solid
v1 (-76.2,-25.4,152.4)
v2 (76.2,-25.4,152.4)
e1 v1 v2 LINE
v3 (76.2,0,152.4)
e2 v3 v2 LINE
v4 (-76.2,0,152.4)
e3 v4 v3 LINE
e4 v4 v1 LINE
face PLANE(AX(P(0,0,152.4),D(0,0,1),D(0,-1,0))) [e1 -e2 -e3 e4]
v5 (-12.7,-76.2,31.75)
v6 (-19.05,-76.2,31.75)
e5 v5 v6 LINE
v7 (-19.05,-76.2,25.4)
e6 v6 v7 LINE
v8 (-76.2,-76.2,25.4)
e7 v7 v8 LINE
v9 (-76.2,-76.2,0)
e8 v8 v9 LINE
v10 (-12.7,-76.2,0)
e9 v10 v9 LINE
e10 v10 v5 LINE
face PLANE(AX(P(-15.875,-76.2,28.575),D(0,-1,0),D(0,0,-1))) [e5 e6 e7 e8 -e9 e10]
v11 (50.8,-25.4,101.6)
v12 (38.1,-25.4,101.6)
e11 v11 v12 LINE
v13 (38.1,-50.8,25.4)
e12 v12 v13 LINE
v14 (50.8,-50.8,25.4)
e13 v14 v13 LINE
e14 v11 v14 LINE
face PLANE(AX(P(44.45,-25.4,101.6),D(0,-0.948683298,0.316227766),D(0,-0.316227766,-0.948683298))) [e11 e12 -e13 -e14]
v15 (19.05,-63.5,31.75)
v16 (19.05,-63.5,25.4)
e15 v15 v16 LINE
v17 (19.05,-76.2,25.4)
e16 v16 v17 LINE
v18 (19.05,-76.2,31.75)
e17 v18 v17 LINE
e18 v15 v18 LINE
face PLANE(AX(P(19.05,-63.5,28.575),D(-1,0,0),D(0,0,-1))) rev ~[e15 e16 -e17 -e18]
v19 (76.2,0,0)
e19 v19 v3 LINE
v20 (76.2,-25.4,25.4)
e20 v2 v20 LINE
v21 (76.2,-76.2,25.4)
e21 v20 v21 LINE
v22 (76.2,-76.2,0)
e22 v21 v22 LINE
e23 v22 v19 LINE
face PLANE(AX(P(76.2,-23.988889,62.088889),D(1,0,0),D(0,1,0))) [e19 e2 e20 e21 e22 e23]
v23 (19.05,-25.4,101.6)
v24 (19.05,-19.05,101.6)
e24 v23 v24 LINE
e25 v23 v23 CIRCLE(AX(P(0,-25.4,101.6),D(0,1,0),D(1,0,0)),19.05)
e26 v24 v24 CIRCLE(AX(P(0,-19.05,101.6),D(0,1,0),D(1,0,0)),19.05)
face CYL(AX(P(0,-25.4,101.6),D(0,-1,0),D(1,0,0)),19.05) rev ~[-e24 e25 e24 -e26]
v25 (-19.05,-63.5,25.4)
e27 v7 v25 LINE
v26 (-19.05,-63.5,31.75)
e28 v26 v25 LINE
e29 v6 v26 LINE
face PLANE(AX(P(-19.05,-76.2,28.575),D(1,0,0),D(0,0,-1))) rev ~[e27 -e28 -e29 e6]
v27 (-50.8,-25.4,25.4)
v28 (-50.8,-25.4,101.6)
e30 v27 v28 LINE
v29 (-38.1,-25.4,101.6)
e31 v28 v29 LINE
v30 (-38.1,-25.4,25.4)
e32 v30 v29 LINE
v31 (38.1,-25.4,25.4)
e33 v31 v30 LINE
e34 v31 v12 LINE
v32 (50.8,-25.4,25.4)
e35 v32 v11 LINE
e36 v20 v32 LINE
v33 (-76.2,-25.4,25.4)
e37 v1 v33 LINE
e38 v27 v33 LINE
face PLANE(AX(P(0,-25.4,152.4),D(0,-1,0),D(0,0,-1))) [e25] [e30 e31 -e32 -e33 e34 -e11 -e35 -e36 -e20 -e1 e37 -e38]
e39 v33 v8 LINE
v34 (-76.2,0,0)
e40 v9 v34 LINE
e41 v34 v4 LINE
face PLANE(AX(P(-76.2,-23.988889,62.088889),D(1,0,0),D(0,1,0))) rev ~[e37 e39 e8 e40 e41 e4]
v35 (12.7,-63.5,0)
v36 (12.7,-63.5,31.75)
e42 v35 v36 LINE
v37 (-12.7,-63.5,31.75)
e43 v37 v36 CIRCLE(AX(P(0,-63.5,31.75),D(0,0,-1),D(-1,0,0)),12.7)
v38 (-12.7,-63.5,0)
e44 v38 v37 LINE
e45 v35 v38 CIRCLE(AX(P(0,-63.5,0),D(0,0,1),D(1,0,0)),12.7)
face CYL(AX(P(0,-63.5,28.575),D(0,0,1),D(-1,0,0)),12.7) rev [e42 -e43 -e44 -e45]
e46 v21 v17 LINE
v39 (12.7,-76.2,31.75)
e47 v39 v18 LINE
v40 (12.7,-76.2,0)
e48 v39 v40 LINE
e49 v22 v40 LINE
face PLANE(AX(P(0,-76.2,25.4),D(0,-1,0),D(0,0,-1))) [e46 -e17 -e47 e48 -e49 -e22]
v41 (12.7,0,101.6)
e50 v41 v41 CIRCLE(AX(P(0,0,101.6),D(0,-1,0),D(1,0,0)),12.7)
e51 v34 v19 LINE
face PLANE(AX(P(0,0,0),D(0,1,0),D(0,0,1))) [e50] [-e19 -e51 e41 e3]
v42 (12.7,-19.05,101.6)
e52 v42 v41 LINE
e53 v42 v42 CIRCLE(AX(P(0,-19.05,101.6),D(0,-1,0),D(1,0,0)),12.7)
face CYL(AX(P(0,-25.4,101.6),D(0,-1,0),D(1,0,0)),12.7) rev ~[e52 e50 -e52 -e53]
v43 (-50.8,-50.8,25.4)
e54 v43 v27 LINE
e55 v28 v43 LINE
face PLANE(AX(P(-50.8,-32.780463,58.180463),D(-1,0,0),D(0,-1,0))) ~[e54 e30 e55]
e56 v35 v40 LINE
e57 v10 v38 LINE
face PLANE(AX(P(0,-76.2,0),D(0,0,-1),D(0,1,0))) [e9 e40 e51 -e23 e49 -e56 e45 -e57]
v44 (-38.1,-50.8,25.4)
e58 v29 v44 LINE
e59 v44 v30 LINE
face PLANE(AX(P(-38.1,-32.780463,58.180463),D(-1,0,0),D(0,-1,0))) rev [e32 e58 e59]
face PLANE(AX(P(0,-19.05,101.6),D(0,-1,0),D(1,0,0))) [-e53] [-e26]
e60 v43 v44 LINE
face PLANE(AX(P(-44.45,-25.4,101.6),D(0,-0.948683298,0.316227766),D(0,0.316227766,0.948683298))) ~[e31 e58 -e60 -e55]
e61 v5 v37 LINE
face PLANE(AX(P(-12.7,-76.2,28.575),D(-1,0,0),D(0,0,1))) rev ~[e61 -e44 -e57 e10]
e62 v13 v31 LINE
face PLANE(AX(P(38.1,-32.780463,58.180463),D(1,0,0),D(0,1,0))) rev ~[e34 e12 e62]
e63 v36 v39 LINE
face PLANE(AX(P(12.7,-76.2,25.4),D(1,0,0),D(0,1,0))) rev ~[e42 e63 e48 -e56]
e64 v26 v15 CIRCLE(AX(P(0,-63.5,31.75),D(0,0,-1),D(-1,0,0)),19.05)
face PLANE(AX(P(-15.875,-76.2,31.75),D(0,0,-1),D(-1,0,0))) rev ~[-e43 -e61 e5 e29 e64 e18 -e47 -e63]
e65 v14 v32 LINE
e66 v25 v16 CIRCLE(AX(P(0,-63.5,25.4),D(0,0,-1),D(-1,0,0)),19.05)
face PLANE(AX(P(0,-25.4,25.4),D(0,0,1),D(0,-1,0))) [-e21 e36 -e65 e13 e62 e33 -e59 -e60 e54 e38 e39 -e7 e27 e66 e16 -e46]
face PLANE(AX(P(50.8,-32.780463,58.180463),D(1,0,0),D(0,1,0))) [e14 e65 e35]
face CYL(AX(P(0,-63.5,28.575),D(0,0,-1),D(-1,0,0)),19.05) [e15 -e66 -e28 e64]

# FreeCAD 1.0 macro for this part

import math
import FreeCAD as App
import Part
import Sketcher
from FreeCAD import Vector
Q = App.Units.Quantity


def add_polygon(sketch, points):
    """Adds a closed chain of lines whose ends are joined by coincident constraints."""
    first, n = sketch.GeometryCount, len(points)
    for a, b in zip(points, points[1:] + points[:1]):
        sketch.addGeometry(Part.LineSegment(App.Vector(*a, 0), App.Vector(*b, 0)), False)
    for i in range(n):
        sketch.addConstraint(Sketcher.Constraint("Coincident", first + i, 2, first + (i + 1) % n, 1))

doc = App.newDocument("Part")
params = doc.addObject("Spreadsheet::Sheet", "Params")
for row, (alias, value) in enumerate([
    ("sketch1_width", "3 in"),
    ("sketch1_width2", "1 in"),
    ("sketch1_height", "6 in"),
    ("pad1_length", "6 in"),
    ("sketch2_radius", "0.5 in"),
    ("sketch2_height", "0.5 in"),
    ("sketch3_diameter", "1 in"),
    ("sketch4_diameter", "1 in"),
    ("sketch4_diameter2", "1.5 in"),
    ("pocket3_length", "0.25 in"),
    ("sketch5_width", "1 in"),
    ("sketch5_height", "3 in"),
    ("pad2_length", "0.5 in"),
    ("sketch6_width", "0.25 in"),
    ("sketch7_radius", "0.5 in"),
    ("sketch7_height", "0.5 in"),
], start=1):
    params.set(f"A{row}", alias)
    params.set(f"B{row}", "=" + value)
    params.setAlias(f"B{row}", alias)

body = doc.addObject("PartDesign::Body", "Body")

sketch1 = body.newObject("Sketcher::SketchObject", "Sketch")
sketch1.AttachmentSupport = (doc.getObject("YZ_Plane"), [""])
sketch1.MapMode = "FlatFace"
add_polygon(sketch1, [(-76, 0), (0, 0), (0, 152), (-25, 152), (-25, 25), (-76, 25)])
sketch1.addConstraint(Sketcher.Constraint("Horizontal", 0))
sketch1.addConstraint(Sketcher.Constraint("Vertical", 1))
sketch1.addConstraint(Sketcher.Constraint("Horizontal", 2))
sketch1.addConstraint(Sketcher.Constraint("Vertical", 3))
sketch1.addConstraint(Sketcher.Constraint("Horizontal", 4))
sketch1.addConstraint(Sketcher.Constraint("Vertical", 5))
sketch1.addConstraint(Sketcher.Constraint("Coincident", 0, 2, -1, 1))
sketch1.addConstraint(Sketcher.Constraint("Equal", 2, 5))
sketch1.addConstraint(Sketcher.Constraint("DistanceX", 0, 1, 0, 2, Q("3 in")))
sketch1.addConstraint(Sketcher.Constraint("DistanceX", 2, 2, 2, 1, Q("1 in")))
sketch1.addConstraint(Sketcher.Constraint("DistanceY", 1, 1, 1, 2, Q("6 in")))
sketch1.setExpression("Constraints[14]", "Params.sketch1_width")
sketch1.setExpression("Constraints[15]", "Params.sketch1_width2")
sketch1.setExpression("Constraints[16]", "Params.sketch1_height")
pad1 = body.newObject("PartDesign::Pad", "Pad")
pad1.Profile = sketch1
pad1.setExpression("Length", "Params.pad1_length")
pad1.Midplane = True

sketch2 = body.newObject("Sketcher::SketchObject", "Sketch001")
sketch2.AttachmentSupport = (doc.getObject("XY_Plane"), [""])
sketch2.MapMode = "FlatFace"
sketch2.AttachmentOffset = App.Placement(Vector(0, 0, 1 * 25.4), App.Rotation())
sketch2.addGeometry(Part.LineSegment(Vector(13, -76, 0), Vector(13, -64, 0)), False)
sketch2.addGeometry(Part.ArcOfCircle(Part.Circle(Vector(0, -64, 0), Vector(0, 0, 1), 13), math.radians(0), math.radians(180)), False)
sketch2.addGeometry(Part.LineSegment(Vector(-13, -64, 0), Vector(-13, -76, 0)), False)
sketch2.addGeometry(Part.LineSegment(Vector(-13, -76, 0), Vector(13, -76, 0)), False)
sketch2.addConstraint(Sketcher.Constraint("Tangent", 0, 2, 1, 1))
sketch2.addConstraint(Sketcher.Constraint("Tangent", 1, 2, 2, 1))
sketch2.addConstraint(Sketcher.Constraint("Coincident", 2, 2, 3, 1))
sketch2.addConstraint(Sketcher.Constraint("Coincident", 3, 2, 0, 1))
sketch2.addConstraint(Sketcher.Constraint("Vertical", 0))
sketch2.addConstraint(Sketcher.Constraint("Vertical", 2))
sketch2.addConstraint(Sketcher.Constraint("Horizontal", 3))
sketch2.addConstraint(Sketcher.Constraint("PointOnObject", 1, 3, -2))
sketch2.addConstraint(Sketcher.Constraint("Radius", 1, Q("0.5 in")))
sketch2.addConstraint(Sketcher.Constraint("DistanceY", 0, 1, 0, 2, Q("0.5 in")))
sketch2.addConstraint(Sketcher.Constraint("DistanceY", 2, 2, -1, 1, Q("3 in")))
sketch2.setExpression("Constraints[8]", "Params.sketch2_radius")
sketch2.setExpression("Constraints[9]", "Params.sketch2_height")
pocket1 = body.newObject("PartDesign::Pocket", "Pocket")
pocket1.Profile = sketch2
pocket1.Type = "ThroughAll"

sketch3 = body.newObject("Sketcher::SketchObject", "Sketch002")
sketch3.AttachmentSupport = (doc.getObject("XZ_Plane"), [""])
sketch3.MapMode = "FlatFace"
sketch3.AttachmentOffset = App.Placement(Vector(0, 0, 1 * 25.4), App.Rotation())
sketch3.addGeometry(Part.Circle(Vector(0, 102, 0), Vector(0, 0, 1), 13), False)
sketch3.addConstraint(Sketcher.Constraint("PointOnObject", 0, 3, -2))
sketch3.addConstraint(Sketcher.Constraint("Diameter", 0, Q("1 in")))
sketch3.addConstraint(Sketcher.Constraint("DistanceY", -1, 1, 0, 3, Q("4 in")))
sketch3.setExpression("Constraints[1]", "Params.sketch3_diameter")
pocket2 = body.newObject("PartDesign::Pocket", "Pocket001")
pocket2.Profile = sketch3
pocket2.Type = "ThroughAll"

sketch4 = body.newObject("Sketcher::SketchObject", "Sketch003")
sketch4.AttachmentSupport = (doc.getObject("XZ_Plane"), [""])
sketch4.MapMode = "FlatFace"
sketch4.AttachmentOffset = App.Placement(Vector(0, 0, 1 * 25.4), App.Rotation())
sketch4.addGeometry(Part.Circle(Vector(0, 102, 0), Vector(0, 0, 1), 19), False)
sketch4.addGeometry(Part.Circle(Vector(0, 102, 0), Vector(0, 0, 1), 13), False)
sketch4.addConstraint(Sketcher.Constraint("Coincident", 1, 3, 0, 3))
sketch4.addConstraint(Sketcher.Constraint("PointOnObject", 0, 3, -2))
sketch4.addConstraint(Sketcher.Constraint("Diameter", 1, Q("1 in")))
sketch4.addConstraint(Sketcher.Constraint("Diameter", 0, Q("1.5 in")))
sketch4.addConstraint(Sketcher.Constraint("DistanceY", -1, 1, 0, 3, Q("4 in")))
sketch4.setExpression("Constraints[2]", "Params.sketch4_diameter")
sketch4.setExpression("Constraints[3]", "Params.sketch4_diameter2")
pocket3 = body.newObject("PartDesign::Pocket", "Pocket002")
pocket3.Profile = sketch4
pocket3.setExpression("Length", "Params.pocket3_length")

sketch5 = body.newObject("Sketcher::SketchObject", "Sketch004")
sketch5.AttachmentSupport = (doc.getObject("YZ_Plane"), [""])
sketch5.MapMode = "FlatFace"
sketch5.AttachmentOffset = App.Placement(Vector(0, 0, 1.75 * 25.4), App.Rotation())
add_polygon(sketch5, [(-51, 25), (-25, 25), (-25, 102)])
sketch5.addConstraint(Sketcher.Constraint("Horizontal", 0))
sketch5.addConstraint(Sketcher.Constraint("Vertical", 1))
sketch5.addConstraint(Sketcher.Constraint("DistanceX", 0, 1, 0, 2, Q("1 in")))
sketch5.addConstraint(Sketcher.Constraint("DistanceY", 1, 1, 1, 2, Q("3 in")))
sketch5.addConstraint(Sketcher.Constraint("DistanceX", 0, 2, -1, 1, Q("1 in")))
sketch5.addConstraint(Sketcher.Constraint("DistanceY", -1, 1, 0, 2, Q("1 in")))
sketch5.setExpression("Constraints[5]", "Params.sketch5_width")
sketch5.setExpression("Constraints[6]", "Params.sketch5_height")
pad2 = body.newObject("PartDesign::Pad", "Pad001")
pad2.Profile = sketch5
pad2.setExpression("Length", "Params.pad2_length")
pad2.Midplane = True
body2 = doc.addObject("PartDesign::Body", "Body001")
doc.recompute()

body2.BaseFeature = body
doc.recompute()

mirroring = doc.addObject("Part::Mirroring", "Mirroring")
mirroring.Source = body
mirroring.Base = Vector(0, 0, 0)
mirroring.Normal = Vector(1, 0, 0)
body3 = doc.addObject("PartDesign::Body", "Body002")
body3.BaseFeature = mirroring
boolean = body2.newObject("PartDesign::Boolean", "Boolean")
boolean.Type = "Fuse"
boolean.addObjects([body3])
doc.recompute()

sketch6 = body2.newObject("Sketcher::SketchObject", "Sketch005")
sketch6.AttachmentSupport = (doc.getObject("XZ_Plane001"), [""])
sketch6.MapMode = "FlatFace"
sketch6.AttachmentOffset = App.Placement(Vector(0, 0, 3 * 25.4), App.Rotation())
add_polygon(sketch6, [(-19, 32), (-19, 25), (-13, 25), (-13, 32)])
sketch6.addConstraint(Sketcher.Constraint("Vertical", 0))
sketch6.addConstraint(Sketcher.Constraint("Horizontal", 1))
sketch6.addConstraint(Sketcher.Constraint("Vertical", 2))
sketch6.addConstraint(Sketcher.Constraint("Horizontal", 3))
sketch6.addConstraint(Sketcher.Constraint("Equal", 3, 0))
sketch6.addConstraint(Sketcher.Constraint("DistanceY", -1, 1, 0, 2, Q("1 in")))
sketch6.addConstraint(Sketcher.Constraint("DistanceX", 1, 1, 1, 2, Q("0.25 in")))
sketch6.addConstraint(Sketcher.Constraint("DistanceX", 1, 2, -1, 1, Q("0.5 in")))
sketch6.setExpression("Constraints[10]", "Params.sketch6_width")

sketch7 = body2.newObject("Sketcher::SketchObject", "Sketch006")
sketch7.AttachmentSupport = (doc.getObject("XY_Plane001"), [""])
sketch7.MapMode = "FlatFace"
sketch7.AttachmentOffset = App.Placement(Vector(0, 0, 1 * 25.4), App.Rotation())
sketch7.addGeometry(Part.LineSegment(Vector(-13, -76, 0), Vector(-13, -64, 0)), False)
sketch7.addGeometry(Part.ArcOfCircle(Part.Circle(Vector(0, -64, 0), Vector(0, 0, 1), 13), math.radians(0), math.radians(180)), False)
sketch7.addGeometry(Part.LineSegment(Vector(13, -64, 0), Vector(13, -76, 0)), False)
sketch7.addConstraint(Sketcher.Constraint("Tangent", 0, 2, 1, 2))
sketch7.addConstraint(Sketcher.Constraint("Tangent", 1, 1, 2, 1))
sketch7.addConstraint(Sketcher.Constraint("Vertical", 0))
sketch7.addConstraint(Sketcher.Constraint("Vertical", 2))
sketch7.addConstraint(Sketcher.Constraint("Symmetric", 0, 1, 2, 2, -2))
sketch7.addConstraint(Sketcher.Constraint("Radius", 1, Q("0.5 in")))
sketch7.addConstraint(Sketcher.Constraint("DistanceY", 0, 1, 0, 2, Q("0.5 in")))
sketch7.addConstraint(Sketcher.Constraint("DistanceY", 0, 1, -1, 1, Q("3 in")))
sketch7.setExpression("Constraints[5]", "Params.sketch7_radius")
sketch7.setExpression("Constraints[6]", "Params.sketch7_height")
doc.recompute()

additivepipe = body2.newObject("PartDesign::AdditivePipe", "AdditivePipe")
additivepipe.Profile = sketch6
additivepipe.Spine = (sketch7, ["Edge1", "Edge2", "Edge3"])
mirroring.Visibility = False

doc.recompute()
